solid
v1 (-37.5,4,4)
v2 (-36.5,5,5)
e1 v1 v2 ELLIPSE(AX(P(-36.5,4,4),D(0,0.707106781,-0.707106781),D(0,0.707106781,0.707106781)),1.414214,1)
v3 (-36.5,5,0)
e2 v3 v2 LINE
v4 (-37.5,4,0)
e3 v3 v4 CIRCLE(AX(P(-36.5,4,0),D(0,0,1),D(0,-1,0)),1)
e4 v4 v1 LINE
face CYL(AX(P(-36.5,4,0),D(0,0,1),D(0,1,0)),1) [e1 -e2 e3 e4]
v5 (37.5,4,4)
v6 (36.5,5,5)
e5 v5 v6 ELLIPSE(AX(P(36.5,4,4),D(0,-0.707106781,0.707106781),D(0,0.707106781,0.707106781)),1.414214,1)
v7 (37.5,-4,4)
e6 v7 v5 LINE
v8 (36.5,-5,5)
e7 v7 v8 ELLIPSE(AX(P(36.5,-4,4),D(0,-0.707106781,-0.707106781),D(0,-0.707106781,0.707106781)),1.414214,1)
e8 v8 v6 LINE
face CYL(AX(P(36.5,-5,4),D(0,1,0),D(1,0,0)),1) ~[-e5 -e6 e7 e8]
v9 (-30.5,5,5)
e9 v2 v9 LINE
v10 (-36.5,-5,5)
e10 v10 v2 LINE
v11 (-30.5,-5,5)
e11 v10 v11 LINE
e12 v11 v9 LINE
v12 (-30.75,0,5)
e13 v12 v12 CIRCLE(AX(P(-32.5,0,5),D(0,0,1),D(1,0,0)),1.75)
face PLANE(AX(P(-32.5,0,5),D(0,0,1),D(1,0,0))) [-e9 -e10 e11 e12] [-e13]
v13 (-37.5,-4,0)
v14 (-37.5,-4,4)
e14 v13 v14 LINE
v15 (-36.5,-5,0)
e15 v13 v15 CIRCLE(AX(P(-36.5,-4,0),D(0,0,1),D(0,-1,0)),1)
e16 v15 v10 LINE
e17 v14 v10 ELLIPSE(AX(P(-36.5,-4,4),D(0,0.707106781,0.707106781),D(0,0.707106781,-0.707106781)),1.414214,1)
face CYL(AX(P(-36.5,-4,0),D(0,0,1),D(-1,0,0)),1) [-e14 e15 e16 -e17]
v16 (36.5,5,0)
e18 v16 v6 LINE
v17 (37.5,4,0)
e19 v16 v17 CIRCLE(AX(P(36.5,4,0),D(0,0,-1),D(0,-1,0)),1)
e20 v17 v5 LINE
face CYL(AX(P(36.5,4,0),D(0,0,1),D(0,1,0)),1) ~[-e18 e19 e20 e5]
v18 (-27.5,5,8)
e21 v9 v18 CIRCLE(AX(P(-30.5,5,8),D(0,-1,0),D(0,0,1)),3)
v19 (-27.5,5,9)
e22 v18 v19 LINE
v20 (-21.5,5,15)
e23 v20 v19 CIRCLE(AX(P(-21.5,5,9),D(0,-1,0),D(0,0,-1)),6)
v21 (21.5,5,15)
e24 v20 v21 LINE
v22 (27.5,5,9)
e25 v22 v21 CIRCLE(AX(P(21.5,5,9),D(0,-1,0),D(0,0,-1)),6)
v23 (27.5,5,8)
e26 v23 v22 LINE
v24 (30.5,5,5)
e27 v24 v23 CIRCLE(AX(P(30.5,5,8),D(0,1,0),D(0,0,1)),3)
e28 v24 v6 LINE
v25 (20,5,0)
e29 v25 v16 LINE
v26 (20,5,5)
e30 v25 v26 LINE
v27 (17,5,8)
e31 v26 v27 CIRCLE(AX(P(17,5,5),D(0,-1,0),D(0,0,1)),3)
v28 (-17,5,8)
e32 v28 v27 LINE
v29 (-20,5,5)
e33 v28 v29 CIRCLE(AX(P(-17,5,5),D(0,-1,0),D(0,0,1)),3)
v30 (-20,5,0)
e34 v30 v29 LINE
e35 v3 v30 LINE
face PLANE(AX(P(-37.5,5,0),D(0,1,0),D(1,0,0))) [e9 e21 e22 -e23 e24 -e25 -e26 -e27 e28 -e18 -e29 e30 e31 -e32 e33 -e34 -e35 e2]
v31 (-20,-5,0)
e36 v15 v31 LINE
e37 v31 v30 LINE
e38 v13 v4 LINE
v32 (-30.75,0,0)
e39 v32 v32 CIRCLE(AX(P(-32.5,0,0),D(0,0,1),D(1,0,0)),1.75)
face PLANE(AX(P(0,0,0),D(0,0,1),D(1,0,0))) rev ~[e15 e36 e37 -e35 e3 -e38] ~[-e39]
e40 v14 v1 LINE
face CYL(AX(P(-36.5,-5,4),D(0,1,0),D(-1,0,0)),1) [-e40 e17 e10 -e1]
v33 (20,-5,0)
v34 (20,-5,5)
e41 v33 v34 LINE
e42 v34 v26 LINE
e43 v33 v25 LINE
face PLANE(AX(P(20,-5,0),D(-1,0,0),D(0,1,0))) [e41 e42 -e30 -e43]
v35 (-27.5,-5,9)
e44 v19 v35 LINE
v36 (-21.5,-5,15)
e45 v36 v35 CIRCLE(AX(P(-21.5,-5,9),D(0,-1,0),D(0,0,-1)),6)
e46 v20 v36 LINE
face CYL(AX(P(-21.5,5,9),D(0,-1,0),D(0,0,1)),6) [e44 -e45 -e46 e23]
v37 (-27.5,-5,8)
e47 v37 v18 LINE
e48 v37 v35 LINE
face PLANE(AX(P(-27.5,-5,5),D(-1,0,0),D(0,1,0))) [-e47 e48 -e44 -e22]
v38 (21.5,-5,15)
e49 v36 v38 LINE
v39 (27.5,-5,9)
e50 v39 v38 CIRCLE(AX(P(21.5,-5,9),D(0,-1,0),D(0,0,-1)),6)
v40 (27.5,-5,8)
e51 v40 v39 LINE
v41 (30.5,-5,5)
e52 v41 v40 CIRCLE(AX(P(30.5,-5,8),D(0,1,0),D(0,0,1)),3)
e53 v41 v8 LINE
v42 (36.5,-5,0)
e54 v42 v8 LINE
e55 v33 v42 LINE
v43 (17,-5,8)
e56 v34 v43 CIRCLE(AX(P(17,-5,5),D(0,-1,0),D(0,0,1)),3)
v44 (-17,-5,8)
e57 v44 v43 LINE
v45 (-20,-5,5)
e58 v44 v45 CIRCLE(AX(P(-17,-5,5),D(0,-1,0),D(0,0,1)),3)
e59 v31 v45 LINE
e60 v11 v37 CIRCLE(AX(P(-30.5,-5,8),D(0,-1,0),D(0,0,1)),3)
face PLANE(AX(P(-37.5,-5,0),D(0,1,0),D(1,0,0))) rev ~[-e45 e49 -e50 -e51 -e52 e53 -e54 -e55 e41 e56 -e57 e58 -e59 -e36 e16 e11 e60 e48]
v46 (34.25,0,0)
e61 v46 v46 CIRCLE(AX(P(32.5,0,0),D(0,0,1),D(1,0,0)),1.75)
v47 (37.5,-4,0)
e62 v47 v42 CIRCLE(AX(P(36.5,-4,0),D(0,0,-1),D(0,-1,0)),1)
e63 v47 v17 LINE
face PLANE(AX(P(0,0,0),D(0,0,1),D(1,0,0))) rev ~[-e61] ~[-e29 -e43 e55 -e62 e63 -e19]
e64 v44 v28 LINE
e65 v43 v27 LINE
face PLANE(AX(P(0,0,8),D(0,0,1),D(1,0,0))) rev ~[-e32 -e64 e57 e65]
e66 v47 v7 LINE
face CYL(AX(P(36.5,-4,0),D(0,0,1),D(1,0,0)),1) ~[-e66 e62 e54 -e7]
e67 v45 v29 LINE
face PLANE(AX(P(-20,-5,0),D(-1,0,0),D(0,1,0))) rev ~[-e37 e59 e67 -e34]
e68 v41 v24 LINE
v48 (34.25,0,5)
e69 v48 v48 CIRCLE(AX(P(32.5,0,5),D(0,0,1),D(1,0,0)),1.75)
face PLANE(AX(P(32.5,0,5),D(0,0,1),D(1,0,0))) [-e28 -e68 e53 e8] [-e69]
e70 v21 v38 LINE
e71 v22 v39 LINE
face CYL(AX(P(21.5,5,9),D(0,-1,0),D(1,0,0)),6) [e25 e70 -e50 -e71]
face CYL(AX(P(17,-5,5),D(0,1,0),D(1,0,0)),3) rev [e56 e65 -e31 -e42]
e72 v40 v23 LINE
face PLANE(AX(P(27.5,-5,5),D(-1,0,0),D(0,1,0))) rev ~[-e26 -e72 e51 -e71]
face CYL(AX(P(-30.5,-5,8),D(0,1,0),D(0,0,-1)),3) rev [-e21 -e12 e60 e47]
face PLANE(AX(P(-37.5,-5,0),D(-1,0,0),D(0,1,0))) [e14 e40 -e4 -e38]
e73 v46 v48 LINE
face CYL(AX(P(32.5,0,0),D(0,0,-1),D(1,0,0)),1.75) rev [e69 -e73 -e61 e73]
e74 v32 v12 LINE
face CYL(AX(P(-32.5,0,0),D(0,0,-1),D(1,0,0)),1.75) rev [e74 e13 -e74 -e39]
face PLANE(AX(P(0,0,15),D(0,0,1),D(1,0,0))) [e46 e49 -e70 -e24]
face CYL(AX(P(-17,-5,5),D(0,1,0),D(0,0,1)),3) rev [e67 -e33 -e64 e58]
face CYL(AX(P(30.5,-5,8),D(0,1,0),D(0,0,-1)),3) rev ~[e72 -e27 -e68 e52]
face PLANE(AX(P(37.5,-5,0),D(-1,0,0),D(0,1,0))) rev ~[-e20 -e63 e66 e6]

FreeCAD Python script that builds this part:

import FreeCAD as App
import Part
import Sketcher

V = App.Vector


def edges_at(feature, points):
    """Names of the edges that pass closest to the given points."""
    edges = feature.Shape.Edges
    near = lambda p: min(range(len(edges)), key=lambda i: edges[i].distToShape(Part.Vertex(*p))[0])
    return sorted({f"Edge{near(p) + 1}" for p in points})


def add_polygon(sketch, points):
    """Adds a closed chain of lines whose ends are joined by coincident constraints."""
    first, n = sketch.GeometryCount, len(points)
    for a, b in zip(points, points[1:] + points[:1]):
        sketch.addGeometry(Part.LineSegment(App.Vector(*a, 0), App.Vector(*b, 0)), False)
    for i in range(n):
        sketch.addConstraint(Sketcher.Constraint("Coincident", first + i, 2, first + (i + 1) % n, 1))

doc = App.newDocument("Part")
body = doc.addObject("PartDesign::Body", "Body")

# Sketch on XY plane
sketch1 = body.newObject("Sketcher::SketchObject", "Sketch")
sketch1.AttachmentSupport = (doc.getObject("XY_Plane"), [""])
sketch1.MapMode = "FlatFace"
add_polygon(sketch1, [(-38, 5), (-38, -5), (38, -5), (38, 5)])  # lines 0-3
sketch1.addConstraint([
    Sketcher.Constraint("Vertical", 0),
    Sketcher.Constraint("Horizontal", 1),
    Sketcher.Constraint("Vertical", 2),
    Sketcher.Constraint("Horizontal", 3),
    Sketcher.Constraint("Symmetric", 0, 2, 2, 2, -1, 1),
    Sketcher.Constraint("DistanceX", 1, 1, 1, 2, 75.0),
    Sketcher.Constraint("DistanceY", 0, 2, 0, 1, 10.0),
])
pad1 = body.newObject("PartDesign::Pad", "Pad")
pad1.Profile = sketch1
pad1.Length = 15

# Sketch on XY plane
sketch2 = body.newObject("Sketcher::SketchObject", "Sketch001")
sketch2.AttachmentSupport = (doc.getObject("XY_Plane"), [""])
sketch2.MapMode = "FlatFace"
sketch2.AttachmentOffset = App.Placement(V(0, 0, 5), App.Rotation())
add_polygon(sketch2, [(-38, 5), (-38, -5), (-28, -5), (-28, 5)])  # lines 0-3
add_polygon(sketch2, [(28, 5), (28, -5), (38, -5), (38, 5)])  # lines 4-7
sketch2.addConstraint([
    Sketcher.Constraint("Vertical", 0),
    Sketcher.Constraint("Horizontal", 1),
    Sketcher.Constraint("Vertical", 2),
    Sketcher.Constraint("Horizontal", 3),
    Sketcher.Constraint("Vertical", 4),
    Sketcher.Constraint("Horizontal", 5),
    Sketcher.Constraint("Vertical", 6),
    Sketcher.Constraint("Horizontal", 7),
    Sketcher.Constraint("Symmetric", 2, 2, 4, 2, -1, 1),
    Sketcher.Constraint("Symmetric", 0, 2, 6, 2, -1, 1),
    Sketcher.Constraint("Horizontal", 1, 2, 4, 2),
    Sketcher.Constraint("Equal", 7, 0),
    Sketcher.Constraint("DistanceX", 1, 1, 1, 2, 10.0),
    Sketcher.Constraint("DistanceX", 1, 2, 4, 2, 55.0),
])
pocket1 = body.newObject("PartDesign::Pocket", "Pocket")
pocket1.Profile = sketch2
pocket1.Length = 25
pocket1.Reversed = True

# Sketch on XY plane
sketch3 = body.newObject("Sketcher::SketchObject", "Sketch002")
sketch3.AttachmentSupport = (doc.getObject("XY_Plane"), [""])
sketch3.MapMode = "FlatFace"
sketch3.addGeometry([
    Part.Circle(V(-32.5, 0, 0), V(0, 0, 1), 1.8),
    Part.Circle(V(32.5, 0, 0), V(0, 0, 1), 1.8),
], False)
sketch3.addConstraint([
    Sketcher.Constraint("Equal", 0, 1),
    Sketcher.Constraint("Symmetric", 0, 3, 1, 3, -1, 1),
    Sketcher.Constraint("PointOnObject", 0, 3, -1),
    Sketcher.Constraint("Diameter", 0, 3.5),
    Sketcher.Constraint("DistanceX", 0, 3, 1, 3, 65.0),
])
pocket2 = body.newObject("PartDesign::Pocket", "Pocket001")
pocket2.Profile = sketch3
pocket2.Length = 5
pocket2.Reversed = True

# Sketch on XY plane
sketch4 = body.newObject("Sketcher::SketchObject", "Sketch003")
sketch4.AttachmentSupport = (doc.getObject("XY_Plane"), [""])
sketch4.MapMode = "FlatFace"
add_polygon(sketch4, [(-20, 5), (-20, -5), (20, -5), (20, 5)])  # lines 0-3
sketch4.addConstraint([
    Sketcher.Constraint("Vertical", 0),
    Sketcher.Constraint("Horizontal", 1),
    Sketcher.Constraint("Vertical", 2),
    Sketcher.Constraint("Horizontal", 3),
    Sketcher.Constraint("Symmetric", 0, 2, 2, 2, -1, 1),
    Sketcher.Constraint("DistanceX", 1, 1, 1, 2, 40.0),
    Sketcher.Constraint("DistanceY", 0, 2, 0, 1, 10.0),
])
pocket3 = body.newObject("PartDesign::Pocket", "Pocket002")
pocket3.Profile = sketch4
pocket3.Length = 8
pocket3.Reversed = True
doc.recompute()

fillet = body.newObject("PartDesign::Fillet", "Fillet")
fillet.Base = (pocket3, edges_at(pocket3, [(-27.5, 0, 5), (27.5, 0, 5)]))
fillet.Radius = 3
doc.recompute()

fillet2 = body.newObject("PartDesign::Fillet", "Fillet001")
fillet2.Base = (fillet, edges_at(fillet, [(-27.5, 0, 15), (27.5, 0, 15)]))
fillet2.Radius = 6
doc.recompute()

fillet3 = body.newObject("PartDesign::Fillet", "Fillet002")
fillet3.Base = (fillet2, edges_at(fillet2, [(-20, 0, 8), (20, 0, 8)]))
fillet3.Radius = 3
doc.recompute()

fillet4 = body.newObject("PartDesign::Fillet", "Fillet003")
fillet4.Base = (fillet3, edges_at(fillet3, [
    (-37.5, 0, 5),
    (-37.5, -5, 2.5),
    (-37.5, 5, 2.5),
    (37.5, -5, 2.5),
    (37.5, 0, 5),
    (37.5, 5, 2.5),
]))
fillet4.Radius = 1

doc.recompute()
